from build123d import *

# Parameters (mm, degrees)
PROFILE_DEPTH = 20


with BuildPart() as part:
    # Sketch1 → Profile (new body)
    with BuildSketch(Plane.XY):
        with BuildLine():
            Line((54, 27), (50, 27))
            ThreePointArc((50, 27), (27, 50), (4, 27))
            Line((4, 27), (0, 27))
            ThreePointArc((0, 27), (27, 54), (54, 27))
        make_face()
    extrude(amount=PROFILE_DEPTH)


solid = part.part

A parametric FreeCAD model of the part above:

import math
import FreeCAD as App
import Part
import Sketcher

doc = App.newDocument("Part")
body = doc.addObject("PartDesign::Body", "Body")

# Sketch on XY plane
sketch1 = body.newObject("Sketcher::SketchObject", "Sketch")
sketch1.AttachmentSupport = (doc.getObject("XY_Plane"), [""])
sketch1.MapMode = "FlatFace"
sketch1.addGeometry(Part.LineSegment(App.Vector(50, 27, 0), App.Vector(54, 27, 0)), False)
sketch1.addGeometry(Part.ArcOfCircle(Part.Circle(App.Vector(27, 27, 0), App.Vector(0, 0, 1), 27), math.radians(0), math.radians(180)), False)
sketch1.addGeometry(Part.LineSegment(App.Vector(0, 27, 0), App.Vector(4, 27, 0)), False)
sketch1.addGeometry(Part.ArcOfCircle(Part.Circle(App.Vector(27, 27, 0), App.Vector(0, 0, 1), 23), math.radians(0), math.radians(180)), False)
sketch1.addConstraint(Sketcher.Constraint("Coincident", 0, 2, 1, 1))
sketch1.addConstraint(Sketcher.Constraint("Coincident", 1, 2, 2, 1))
sketch1.addConstraint(Sketcher.Constraint("Coincident", 2, 2, 3, 2))
sketch1.addConstraint(Sketcher.Constraint("Coincident", 3, 1, 0, 1))
sketch1.addConstraint(Sketcher.Constraint("Horizontal", 0))
sketch1.addConstraint(Sketcher.Constraint("Horizontal", 2))
sketch1.addConstraint(Sketcher.Constraint("Coincident", 3, 3, 1, 3))
sketch1.addConstraint(Sketcher.Constraint("PointOnObject", 1, 2, -2))
sketch1.addConstraint(Sketcher.Constraint("Horizontal", 3, 3, 0, 2))
sketch1.addConstraint(Sketcher.Constraint("Horizontal", 0, 2, 1, 2))
sketch1.addConstraint(Sketcher.Constraint("Radius", 1, 27.0))
sketch1.addConstraint(Sketcher.Constraint("Radius", 3, 23.0))
sketch1.addConstraint(Sketcher.Constraint("DistanceY", -1, 1, 1, 3, 27.0))
pad1 = body.newObject("PartDesign::Pad", "Pad")
pad1.Profile = sketch1
pad1.Length = 20

doc.recompute()
